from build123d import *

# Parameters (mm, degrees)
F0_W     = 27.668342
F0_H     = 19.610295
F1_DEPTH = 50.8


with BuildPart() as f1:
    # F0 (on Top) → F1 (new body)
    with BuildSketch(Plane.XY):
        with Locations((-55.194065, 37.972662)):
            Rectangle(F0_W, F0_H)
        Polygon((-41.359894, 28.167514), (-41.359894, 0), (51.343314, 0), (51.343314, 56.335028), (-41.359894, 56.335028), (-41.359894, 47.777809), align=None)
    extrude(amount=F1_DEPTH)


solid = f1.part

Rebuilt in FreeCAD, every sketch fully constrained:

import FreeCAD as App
import Part
import Sketcher
Q = App.Units.Quantity

doc = App.newDocument("Part")
body = doc.addObject("PartDesign::Body", "Body")

# Sketch on XY plane
sketch1 = body.newObject("Sketcher::SketchObject", "Sketch")
sketch1.AttachmentSupport = (doc.getObject("XY_Plane"), [""])
sketch1.MapMode = "FlatFace"
sketch1.addGeometry(Part.LineSegment(App.Vector(-69.028236, 47.777809, 0), App.Vector(-69.028236, 28.167514, 0)), False)
sketch1.addGeometry(Part.LineSegment(App.Vector(-69.028236, 28.167514, 0), App.Vector(-41.359894, 28.167514, 0)), False)
sketch1.addGeometry(Part.LineSegment(App.Vector(-41.359894, 28.167514, 0), App.Vector(-41.359894, 0, 0)), False)
sketch1.addGeometry(Part.LineSegment(App.Vector(-41.359894, 0, 0), App.Vector(51.343314, 0, 0)), False)
sketch1.addGeometry(Part.LineSegment(App.Vector(51.343314, 0, 0), App.Vector(51.343314, 56.335028, 0)), False)
sketch1.addGeometry(Part.LineSegment(App.Vector(51.343314, 56.335028, 0), App.Vector(-41.359894, 56.335028, 0)), False)
sketch1.addGeometry(Part.LineSegment(App.Vector(-41.359894, 56.335028, 0), App.Vector(-41.359894, 47.777809, 0)), False)
sketch1.addGeometry(Part.LineSegment(App.Vector(-41.359894, 47.777809, 0), App.Vector(-69.028236, 47.777809, 0)), False)
sketch1.addConstraint(Sketcher.Constraint("Coincident", 0, 2, 1, 1))
sketch1.addConstraint(Sketcher.Constraint("Coincident", 1, 2, 2, 1))
sketch1.addConstraint(Sketcher.Constraint("Coincident", 2, 2, 3, 1))
sketch1.addConstraint(Sketcher.Constraint("Coincident", 3, 2, 4, 1))
sketch1.addConstraint(Sketcher.Constraint("Coincident", 4, 2, 5, 1))
sketch1.addConstraint(Sketcher.Constraint("Coincident", 5, 2, 6, 1))
sketch1.addConstraint(Sketcher.Constraint("Coincident", 6, 2, 7, 1))
sketch1.addConstraint(Sketcher.Constraint("Coincident", 7, 2, 0, 1))
sketch1.addConstraint(Sketcher.Constraint("Vertical", 0))
sketch1.addConstraint(Sketcher.Constraint("Horizontal", 1))
sketch1.addConstraint(Sketcher.Constraint("Vertical", 2))
sketch1.addConstraint(Sketcher.Constraint("Horizontal", 3))
sketch1.addConstraint(Sketcher.Constraint("Vertical", 4))
sketch1.addConstraint(Sketcher.Constraint("Horizontal", 5))
sketch1.addConstraint(Sketcher.Constraint("Vertical", 6))
sketch1.addConstraint(Sketcher.Constraint("Horizontal", 7))
sketch1.addConstraint(Sketcher.Constraint("PointOnObject", 2, 2, -1))
sketch1.addConstraint(Sketcher.Constraint("Vertical", 2, 2, 5, 2))
sketch1.addConstraint(Sketcher.Constraint("DistanceY", 6, 2, 6, 1, 8.557219))
sketch1.addConstraint(Sketcher.Constraint("DistanceX", 1, 1, 1, 2, 27.668342))
sketch1.addConstraint(Sketcher.Constraint("DistanceX", 3, 1, 3, 2, 92.703208))
sketch1.addConstraint(Sketcher.Constraint("DistanceY", 0, 2, 0, 1, 19.610295))
sketch1.addConstraint(Sketcher.Constraint("DistanceY", 2, 2, 2, 1, 28.167514))
sketch1.addConstraint(Sketcher.Constraint("DistanceX", 0, 2, -1, 1, 69.028236))
pad1 = body.newObject("PartDesign::Pad", "Pad")
pad1.Profile = sketch1
pad1.Length = Q("2 in")

doc.recompute()
